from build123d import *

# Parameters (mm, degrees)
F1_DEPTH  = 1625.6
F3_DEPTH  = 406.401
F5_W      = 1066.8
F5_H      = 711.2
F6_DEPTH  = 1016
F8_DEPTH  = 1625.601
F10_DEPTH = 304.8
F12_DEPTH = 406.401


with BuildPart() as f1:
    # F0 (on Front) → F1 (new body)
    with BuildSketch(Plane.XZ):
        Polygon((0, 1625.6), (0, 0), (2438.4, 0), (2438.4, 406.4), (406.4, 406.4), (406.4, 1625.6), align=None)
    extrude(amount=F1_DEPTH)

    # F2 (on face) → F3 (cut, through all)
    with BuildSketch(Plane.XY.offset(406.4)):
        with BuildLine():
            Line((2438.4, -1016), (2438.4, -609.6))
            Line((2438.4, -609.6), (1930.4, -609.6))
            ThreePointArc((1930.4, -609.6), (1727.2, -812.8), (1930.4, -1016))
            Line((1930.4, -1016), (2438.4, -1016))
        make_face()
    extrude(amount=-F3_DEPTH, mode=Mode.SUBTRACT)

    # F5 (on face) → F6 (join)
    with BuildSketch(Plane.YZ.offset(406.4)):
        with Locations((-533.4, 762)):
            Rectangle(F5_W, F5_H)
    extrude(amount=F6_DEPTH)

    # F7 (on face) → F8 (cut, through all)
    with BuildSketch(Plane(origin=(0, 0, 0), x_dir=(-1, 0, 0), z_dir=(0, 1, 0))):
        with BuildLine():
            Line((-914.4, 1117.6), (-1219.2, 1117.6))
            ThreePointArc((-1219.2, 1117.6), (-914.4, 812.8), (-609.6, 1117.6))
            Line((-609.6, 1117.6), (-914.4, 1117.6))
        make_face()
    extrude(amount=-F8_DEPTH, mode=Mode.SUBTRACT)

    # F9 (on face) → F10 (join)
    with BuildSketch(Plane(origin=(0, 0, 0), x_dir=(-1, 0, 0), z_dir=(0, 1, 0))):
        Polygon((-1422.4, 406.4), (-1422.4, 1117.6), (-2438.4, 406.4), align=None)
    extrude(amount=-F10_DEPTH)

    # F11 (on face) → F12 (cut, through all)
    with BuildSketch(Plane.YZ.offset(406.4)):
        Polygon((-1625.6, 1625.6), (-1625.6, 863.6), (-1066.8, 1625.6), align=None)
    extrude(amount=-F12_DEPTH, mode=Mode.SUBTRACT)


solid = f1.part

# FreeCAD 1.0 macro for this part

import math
import FreeCAD as App
import Part
import Sketcher

V = App.Vector
Q = App.Units.Quantity


def add_polygon(sketch, points):
    """Adds a closed chain of lines whose ends are joined by coincident constraints."""
    first, n = sketch.GeometryCount, len(points)
    for a, b in zip(points, points[1:] + points[:1]):
        sketch.addGeometry(Part.LineSegment(App.Vector(*a, 0), App.Vector(*b, 0)), False)
    for i in range(n):
        sketch.addConstraint(Sketcher.Constraint("Coincident", first + i, 2, first + (i + 1) % n, 1))

doc = App.newDocument("Part")
body = doc.addObject("PartDesign::Body", "Body")

# Sketch on XZ plane
sketch1 = body.newObject("Sketcher::SketchObject", "Sketch")
sketch1.AttachmentSupport = (doc.getObject("XZ_Plane"), [""])
sketch1.MapMode = "FlatFace"
add_polygon(sketch1, [(0, 1626), (0, 0), (2438, 0), (2438, 406), (406, 406), (406, 1626)])  # lines 0-5
sketch1.addConstraint(Sketcher.Constraint("Vertical", 0))
sketch1.addConstraint(Sketcher.Constraint("Horizontal", 1))
sketch1.addConstraint(Sketcher.Constraint("Vertical", 2))
sketch1.addConstraint(Sketcher.Constraint("Horizontal", 3))
sketch1.addConstraint(Sketcher.Constraint("Vertical", 4))
sketch1.addConstraint(Sketcher.Constraint("Horizontal", 5))
sketch1.addConstraint(Sketcher.Constraint("Coincident", 0, 2, -1, 1))
sketch1.addConstraint(Sketcher.Constraint("Equal", 5, 2))
sketch1.addConstraint(Sketcher.Constraint("DistanceX", 1, 1, 1, 2, Q("96 in")))
sketch1.addConstraint(Sketcher.Constraint("DistanceX", 3, 2, 3, 1, Q("80 in")))
sketch1.addConstraint(Sketcher.Constraint("DistanceY", 0, 2, 0, 1, Q("64 in")))
pad1 = body.newObject("PartDesign::Pad", "Pad")
pad1.Profile = sketch1
pad1.Length = Q("64 in")

# Sketch on XY plane
sketch2 = body.newObject("Sketcher::SketchObject", "Sketch001")
sketch2.AttachmentSupport = (doc.getObject("XY_Plane"), [""])
sketch2.MapMode = "FlatFace"
sketch2.AttachmentOffset = App.Placement(V(0, 0, 16 * 25.4), App.Rotation())
sketch2.addGeometry(Part.LineSegment(V(2438, -1016, 0), V(2438, -610, 0)), False)
sketch2.addGeometry(Part.LineSegment(V(2438, -610, 0), V(1930, -610, 0)), False)
sketch2.addGeometry(Part.ArcOfCircle(Part.Circle(V(1930, -813, 0), V(0, 0, 1), 203), math.radians(90), math.radians(270)), False)
sketch2.addGeometry(Part.LineSegment(V(1930, -1016, 0), V(2438, -1016, 0)), False)
sketch2.addConstraint(Sketcher.Constraint("Coincident", 0, 2, 1, 1))
sketch2.addConstraint(Sketcher.Constraint("Tangent", 1, 2, 2, 1))
sketch2.addConstraint(Sketcher.Constraint("Tangent", 2, 2, 3, 1))
sketch2.addConstraint(Sketcher.Constraint("Coincident", 3, 2, 0, 1))
sketch2.addConstraint(Sketcher.Constraint("Vertical", 0))
sketch2.addConstraint(Sketcher.Constraint("Horizontal", 1))
sketch2.addConstraint(Sketcher.Constraint("Horizontal", 3))
sketch2.addConstraint(Sketcher.Constraint("Radius", 2, Q("8 in")))
sketch2.addConstraint(Sketcher.Constraint("DistanceX", 1, 2, 1, 1, Q("20 in")))
sketch2.addConstraint(Sketcher.Constraint("DistanceX", -1, 1, 2, 3, Q("76 in")))
sketch2.addConstraint(Sketcher.Constraint("DistanceY", 2, 3, -1, 1, Q("32 in")))
pocket1 = body.newObject("PartDesign::Pocket", "Pocket")
pocket1.Profile = sketch2
pocket1.Type = "ThroughAll"

# Sketch on YZ plane
sketch3 = body.newObject("Sketcher::SketchObject", "Sketch002")
sketch3.AttachmentSupport = (doc.getObject("YZ_Plane"), [""])
sketch3.MapMode = "FlatFace"
sketch3.AttachmentOffset = App.Placement(V(0, 0, 16 * 25.4), App.Rotation())
add_polygon(sketch3, [(-1067, 1118), (-1067, 406), (0, 406), (0, 1118)])  # lines 0-3
sketch3.addConstraint(Sketcher.Constraint("Vertical", 0))
sketch3.addConstraint(Sketcher.Constraint("Horizontal", 1))
sketch3.addConstraint(Sketcher.Constraint("Vertical", 2))
sketch3.addConstraint(Sketcher.Constraint("Horizontal", 3))
sketch3.addConstraint(Sketcher.Constraint("PointOnObject", 1, 2, -2))
sketch3.addConstraint(Sketcher.Constraint("DistanceX", 1, 1, 1, 2, Q("42 in")))
sketch3.addConstraint(Sketcher.Constraint("DistanceY", 0, 2, 0, 1, Q("28 in")))
sketch3.addConstraint(Sketcher.Constraint("DistanceY", -1, 1, 0, 2, Q("16 in")))
pad2 = body.newObject("PartDesign::Pad", "Pad001")
pad2.Profile = sketch3
pad2.Length = Q("40 in")

# Sketch on XZ plane
sketch4 = body.newObject("Sketcher::SketchObject", "Sketch003")
sketch4.AttachmentSupport = (doc.getObject("XZ_Plane"), [""])
sketch4.MapMode = "FlatFace"
sketch4.addGeometry(Part.ArcOfCircle(Part.Circle(V(914, 1118, 0), V(0, 0, 1), 305), math.radians(180), math.radians(360)), False)
sketch4.addGeometry(Part.LineSegment(V(610, 1118, 0), V(1219, 1118, 0)), False)
sketch4.addConstraint(Sketcher.Constraint("Coincident", 0, 1, 1, 1))
sketch4.addConstraint(Sketcher.Constraint("Coincident", 1, 2, 0, 2))
sketch4.addConstraint(Sketcher.Constraint("Horizontal", 1))
sketch4.addConstraint(Sketcher.Constraint("Radius", 0, Q("12 in")))
sketch4.addConstraint(Sketcher.Constraint("DistanceX", -1, 1, 0, 3, Q("36 in")))
sketch4.addConstraint(Sketcher.Constraint("DistanceY", -1, 1, 0, 3, Q("44 in")))
sketch4.addConstraint(Sketcher.Constraint("DistanceY", -1, 1, 0, 1, Q("44 in")))
pocket2 = body.newObject("PartDesign::Pocket", "Pocket001")
pocket2.Profile = sketch4
pocket2.Type = "ThroughAll"
pocket2.Reversed = True

# Sketch on XZ plane
sketch5 = body.newObject("Sketcher::SketchObject", "Sketch004")
sketch5.AttachmentSupport = (doc.getObject("XZ_Plane"), [""])
sketch5.MapMode = "FlatFace"
add_polygon(sketch5, [(1422, 406), (1422, 1118), (2438, 406)])  # lines 0-2
sketch5.addConstraint(Sketcher.Constraint("Vertical", 0))
sketch5.addConstraint(Sketcher.Constraint("Horizontal", 2))
sketch5.addConstraint(Sketcher.Constraint("DistanceX", 2, 2, 2, 1, Q("40 in")))
sketch5.addConstraint(Sketcher.Constraint("DistanceY", 0, 1, 0, 2, Q("28 in")))
sketch5.addConstraint(Sketcher.Constraint("DistanceX", -1, 1, 0, 2, Q("56 in")))
sketch5.addConstraint(Sketcher.Constraint("DistanceY", -1, 1, 0, 2, Q("44 in")))
pad3 = body.newObject("PartDesign::Pad", "Pad002")
pad3.Profile = sketch5
pad3.Length = Q("12 in")

# Sketch on YZ plane
sketch6 = body.newObject("Sketcher::SketchObject", "Sketch005")
sketch6.AttachmentSupport = (doc.getObject("YZ_Plane"), [""])
sketch6.MapMode = "FlatFace"
sketch6.AttachmentOffset = App.Placement(V(0, 0, 16 * 25.4), App.Rotation())
add_polygon(sketch6, [(-1626, 1626), (-1626, 864), (-1067, 1626)])  # lines 0-2
sketch6.addConstraint(Sketcher.Constraint("Vertical", 0))
sketch6.addConstraint(Sketcher.Constraint("Horizontal", 2))
sketch6.addConstraint(Sketcher.Constraint("DistanceX", 2, 2, 2, 1, Q("22 in")))
sketch6.addConstraint(Sketcher.Constraint("DistanceY", 0, 2, 0, 1, Q("30 in")))
sketch6.addConstraint(Sketcher.Constraint("DistanceX", 0, 2, -1, 1, Q("64 in")))
sketch6.addConstraint(Sketcher.Constraint("DistanceY", -1, 1, 0, 2, Q("34 in")))
pocket3 = body.newObject("PartDesign::Pocket", "Pocket002")
pocket3.Profile = sketch6
pocket3.Type = "ThroughAll"

doc.recompute()
